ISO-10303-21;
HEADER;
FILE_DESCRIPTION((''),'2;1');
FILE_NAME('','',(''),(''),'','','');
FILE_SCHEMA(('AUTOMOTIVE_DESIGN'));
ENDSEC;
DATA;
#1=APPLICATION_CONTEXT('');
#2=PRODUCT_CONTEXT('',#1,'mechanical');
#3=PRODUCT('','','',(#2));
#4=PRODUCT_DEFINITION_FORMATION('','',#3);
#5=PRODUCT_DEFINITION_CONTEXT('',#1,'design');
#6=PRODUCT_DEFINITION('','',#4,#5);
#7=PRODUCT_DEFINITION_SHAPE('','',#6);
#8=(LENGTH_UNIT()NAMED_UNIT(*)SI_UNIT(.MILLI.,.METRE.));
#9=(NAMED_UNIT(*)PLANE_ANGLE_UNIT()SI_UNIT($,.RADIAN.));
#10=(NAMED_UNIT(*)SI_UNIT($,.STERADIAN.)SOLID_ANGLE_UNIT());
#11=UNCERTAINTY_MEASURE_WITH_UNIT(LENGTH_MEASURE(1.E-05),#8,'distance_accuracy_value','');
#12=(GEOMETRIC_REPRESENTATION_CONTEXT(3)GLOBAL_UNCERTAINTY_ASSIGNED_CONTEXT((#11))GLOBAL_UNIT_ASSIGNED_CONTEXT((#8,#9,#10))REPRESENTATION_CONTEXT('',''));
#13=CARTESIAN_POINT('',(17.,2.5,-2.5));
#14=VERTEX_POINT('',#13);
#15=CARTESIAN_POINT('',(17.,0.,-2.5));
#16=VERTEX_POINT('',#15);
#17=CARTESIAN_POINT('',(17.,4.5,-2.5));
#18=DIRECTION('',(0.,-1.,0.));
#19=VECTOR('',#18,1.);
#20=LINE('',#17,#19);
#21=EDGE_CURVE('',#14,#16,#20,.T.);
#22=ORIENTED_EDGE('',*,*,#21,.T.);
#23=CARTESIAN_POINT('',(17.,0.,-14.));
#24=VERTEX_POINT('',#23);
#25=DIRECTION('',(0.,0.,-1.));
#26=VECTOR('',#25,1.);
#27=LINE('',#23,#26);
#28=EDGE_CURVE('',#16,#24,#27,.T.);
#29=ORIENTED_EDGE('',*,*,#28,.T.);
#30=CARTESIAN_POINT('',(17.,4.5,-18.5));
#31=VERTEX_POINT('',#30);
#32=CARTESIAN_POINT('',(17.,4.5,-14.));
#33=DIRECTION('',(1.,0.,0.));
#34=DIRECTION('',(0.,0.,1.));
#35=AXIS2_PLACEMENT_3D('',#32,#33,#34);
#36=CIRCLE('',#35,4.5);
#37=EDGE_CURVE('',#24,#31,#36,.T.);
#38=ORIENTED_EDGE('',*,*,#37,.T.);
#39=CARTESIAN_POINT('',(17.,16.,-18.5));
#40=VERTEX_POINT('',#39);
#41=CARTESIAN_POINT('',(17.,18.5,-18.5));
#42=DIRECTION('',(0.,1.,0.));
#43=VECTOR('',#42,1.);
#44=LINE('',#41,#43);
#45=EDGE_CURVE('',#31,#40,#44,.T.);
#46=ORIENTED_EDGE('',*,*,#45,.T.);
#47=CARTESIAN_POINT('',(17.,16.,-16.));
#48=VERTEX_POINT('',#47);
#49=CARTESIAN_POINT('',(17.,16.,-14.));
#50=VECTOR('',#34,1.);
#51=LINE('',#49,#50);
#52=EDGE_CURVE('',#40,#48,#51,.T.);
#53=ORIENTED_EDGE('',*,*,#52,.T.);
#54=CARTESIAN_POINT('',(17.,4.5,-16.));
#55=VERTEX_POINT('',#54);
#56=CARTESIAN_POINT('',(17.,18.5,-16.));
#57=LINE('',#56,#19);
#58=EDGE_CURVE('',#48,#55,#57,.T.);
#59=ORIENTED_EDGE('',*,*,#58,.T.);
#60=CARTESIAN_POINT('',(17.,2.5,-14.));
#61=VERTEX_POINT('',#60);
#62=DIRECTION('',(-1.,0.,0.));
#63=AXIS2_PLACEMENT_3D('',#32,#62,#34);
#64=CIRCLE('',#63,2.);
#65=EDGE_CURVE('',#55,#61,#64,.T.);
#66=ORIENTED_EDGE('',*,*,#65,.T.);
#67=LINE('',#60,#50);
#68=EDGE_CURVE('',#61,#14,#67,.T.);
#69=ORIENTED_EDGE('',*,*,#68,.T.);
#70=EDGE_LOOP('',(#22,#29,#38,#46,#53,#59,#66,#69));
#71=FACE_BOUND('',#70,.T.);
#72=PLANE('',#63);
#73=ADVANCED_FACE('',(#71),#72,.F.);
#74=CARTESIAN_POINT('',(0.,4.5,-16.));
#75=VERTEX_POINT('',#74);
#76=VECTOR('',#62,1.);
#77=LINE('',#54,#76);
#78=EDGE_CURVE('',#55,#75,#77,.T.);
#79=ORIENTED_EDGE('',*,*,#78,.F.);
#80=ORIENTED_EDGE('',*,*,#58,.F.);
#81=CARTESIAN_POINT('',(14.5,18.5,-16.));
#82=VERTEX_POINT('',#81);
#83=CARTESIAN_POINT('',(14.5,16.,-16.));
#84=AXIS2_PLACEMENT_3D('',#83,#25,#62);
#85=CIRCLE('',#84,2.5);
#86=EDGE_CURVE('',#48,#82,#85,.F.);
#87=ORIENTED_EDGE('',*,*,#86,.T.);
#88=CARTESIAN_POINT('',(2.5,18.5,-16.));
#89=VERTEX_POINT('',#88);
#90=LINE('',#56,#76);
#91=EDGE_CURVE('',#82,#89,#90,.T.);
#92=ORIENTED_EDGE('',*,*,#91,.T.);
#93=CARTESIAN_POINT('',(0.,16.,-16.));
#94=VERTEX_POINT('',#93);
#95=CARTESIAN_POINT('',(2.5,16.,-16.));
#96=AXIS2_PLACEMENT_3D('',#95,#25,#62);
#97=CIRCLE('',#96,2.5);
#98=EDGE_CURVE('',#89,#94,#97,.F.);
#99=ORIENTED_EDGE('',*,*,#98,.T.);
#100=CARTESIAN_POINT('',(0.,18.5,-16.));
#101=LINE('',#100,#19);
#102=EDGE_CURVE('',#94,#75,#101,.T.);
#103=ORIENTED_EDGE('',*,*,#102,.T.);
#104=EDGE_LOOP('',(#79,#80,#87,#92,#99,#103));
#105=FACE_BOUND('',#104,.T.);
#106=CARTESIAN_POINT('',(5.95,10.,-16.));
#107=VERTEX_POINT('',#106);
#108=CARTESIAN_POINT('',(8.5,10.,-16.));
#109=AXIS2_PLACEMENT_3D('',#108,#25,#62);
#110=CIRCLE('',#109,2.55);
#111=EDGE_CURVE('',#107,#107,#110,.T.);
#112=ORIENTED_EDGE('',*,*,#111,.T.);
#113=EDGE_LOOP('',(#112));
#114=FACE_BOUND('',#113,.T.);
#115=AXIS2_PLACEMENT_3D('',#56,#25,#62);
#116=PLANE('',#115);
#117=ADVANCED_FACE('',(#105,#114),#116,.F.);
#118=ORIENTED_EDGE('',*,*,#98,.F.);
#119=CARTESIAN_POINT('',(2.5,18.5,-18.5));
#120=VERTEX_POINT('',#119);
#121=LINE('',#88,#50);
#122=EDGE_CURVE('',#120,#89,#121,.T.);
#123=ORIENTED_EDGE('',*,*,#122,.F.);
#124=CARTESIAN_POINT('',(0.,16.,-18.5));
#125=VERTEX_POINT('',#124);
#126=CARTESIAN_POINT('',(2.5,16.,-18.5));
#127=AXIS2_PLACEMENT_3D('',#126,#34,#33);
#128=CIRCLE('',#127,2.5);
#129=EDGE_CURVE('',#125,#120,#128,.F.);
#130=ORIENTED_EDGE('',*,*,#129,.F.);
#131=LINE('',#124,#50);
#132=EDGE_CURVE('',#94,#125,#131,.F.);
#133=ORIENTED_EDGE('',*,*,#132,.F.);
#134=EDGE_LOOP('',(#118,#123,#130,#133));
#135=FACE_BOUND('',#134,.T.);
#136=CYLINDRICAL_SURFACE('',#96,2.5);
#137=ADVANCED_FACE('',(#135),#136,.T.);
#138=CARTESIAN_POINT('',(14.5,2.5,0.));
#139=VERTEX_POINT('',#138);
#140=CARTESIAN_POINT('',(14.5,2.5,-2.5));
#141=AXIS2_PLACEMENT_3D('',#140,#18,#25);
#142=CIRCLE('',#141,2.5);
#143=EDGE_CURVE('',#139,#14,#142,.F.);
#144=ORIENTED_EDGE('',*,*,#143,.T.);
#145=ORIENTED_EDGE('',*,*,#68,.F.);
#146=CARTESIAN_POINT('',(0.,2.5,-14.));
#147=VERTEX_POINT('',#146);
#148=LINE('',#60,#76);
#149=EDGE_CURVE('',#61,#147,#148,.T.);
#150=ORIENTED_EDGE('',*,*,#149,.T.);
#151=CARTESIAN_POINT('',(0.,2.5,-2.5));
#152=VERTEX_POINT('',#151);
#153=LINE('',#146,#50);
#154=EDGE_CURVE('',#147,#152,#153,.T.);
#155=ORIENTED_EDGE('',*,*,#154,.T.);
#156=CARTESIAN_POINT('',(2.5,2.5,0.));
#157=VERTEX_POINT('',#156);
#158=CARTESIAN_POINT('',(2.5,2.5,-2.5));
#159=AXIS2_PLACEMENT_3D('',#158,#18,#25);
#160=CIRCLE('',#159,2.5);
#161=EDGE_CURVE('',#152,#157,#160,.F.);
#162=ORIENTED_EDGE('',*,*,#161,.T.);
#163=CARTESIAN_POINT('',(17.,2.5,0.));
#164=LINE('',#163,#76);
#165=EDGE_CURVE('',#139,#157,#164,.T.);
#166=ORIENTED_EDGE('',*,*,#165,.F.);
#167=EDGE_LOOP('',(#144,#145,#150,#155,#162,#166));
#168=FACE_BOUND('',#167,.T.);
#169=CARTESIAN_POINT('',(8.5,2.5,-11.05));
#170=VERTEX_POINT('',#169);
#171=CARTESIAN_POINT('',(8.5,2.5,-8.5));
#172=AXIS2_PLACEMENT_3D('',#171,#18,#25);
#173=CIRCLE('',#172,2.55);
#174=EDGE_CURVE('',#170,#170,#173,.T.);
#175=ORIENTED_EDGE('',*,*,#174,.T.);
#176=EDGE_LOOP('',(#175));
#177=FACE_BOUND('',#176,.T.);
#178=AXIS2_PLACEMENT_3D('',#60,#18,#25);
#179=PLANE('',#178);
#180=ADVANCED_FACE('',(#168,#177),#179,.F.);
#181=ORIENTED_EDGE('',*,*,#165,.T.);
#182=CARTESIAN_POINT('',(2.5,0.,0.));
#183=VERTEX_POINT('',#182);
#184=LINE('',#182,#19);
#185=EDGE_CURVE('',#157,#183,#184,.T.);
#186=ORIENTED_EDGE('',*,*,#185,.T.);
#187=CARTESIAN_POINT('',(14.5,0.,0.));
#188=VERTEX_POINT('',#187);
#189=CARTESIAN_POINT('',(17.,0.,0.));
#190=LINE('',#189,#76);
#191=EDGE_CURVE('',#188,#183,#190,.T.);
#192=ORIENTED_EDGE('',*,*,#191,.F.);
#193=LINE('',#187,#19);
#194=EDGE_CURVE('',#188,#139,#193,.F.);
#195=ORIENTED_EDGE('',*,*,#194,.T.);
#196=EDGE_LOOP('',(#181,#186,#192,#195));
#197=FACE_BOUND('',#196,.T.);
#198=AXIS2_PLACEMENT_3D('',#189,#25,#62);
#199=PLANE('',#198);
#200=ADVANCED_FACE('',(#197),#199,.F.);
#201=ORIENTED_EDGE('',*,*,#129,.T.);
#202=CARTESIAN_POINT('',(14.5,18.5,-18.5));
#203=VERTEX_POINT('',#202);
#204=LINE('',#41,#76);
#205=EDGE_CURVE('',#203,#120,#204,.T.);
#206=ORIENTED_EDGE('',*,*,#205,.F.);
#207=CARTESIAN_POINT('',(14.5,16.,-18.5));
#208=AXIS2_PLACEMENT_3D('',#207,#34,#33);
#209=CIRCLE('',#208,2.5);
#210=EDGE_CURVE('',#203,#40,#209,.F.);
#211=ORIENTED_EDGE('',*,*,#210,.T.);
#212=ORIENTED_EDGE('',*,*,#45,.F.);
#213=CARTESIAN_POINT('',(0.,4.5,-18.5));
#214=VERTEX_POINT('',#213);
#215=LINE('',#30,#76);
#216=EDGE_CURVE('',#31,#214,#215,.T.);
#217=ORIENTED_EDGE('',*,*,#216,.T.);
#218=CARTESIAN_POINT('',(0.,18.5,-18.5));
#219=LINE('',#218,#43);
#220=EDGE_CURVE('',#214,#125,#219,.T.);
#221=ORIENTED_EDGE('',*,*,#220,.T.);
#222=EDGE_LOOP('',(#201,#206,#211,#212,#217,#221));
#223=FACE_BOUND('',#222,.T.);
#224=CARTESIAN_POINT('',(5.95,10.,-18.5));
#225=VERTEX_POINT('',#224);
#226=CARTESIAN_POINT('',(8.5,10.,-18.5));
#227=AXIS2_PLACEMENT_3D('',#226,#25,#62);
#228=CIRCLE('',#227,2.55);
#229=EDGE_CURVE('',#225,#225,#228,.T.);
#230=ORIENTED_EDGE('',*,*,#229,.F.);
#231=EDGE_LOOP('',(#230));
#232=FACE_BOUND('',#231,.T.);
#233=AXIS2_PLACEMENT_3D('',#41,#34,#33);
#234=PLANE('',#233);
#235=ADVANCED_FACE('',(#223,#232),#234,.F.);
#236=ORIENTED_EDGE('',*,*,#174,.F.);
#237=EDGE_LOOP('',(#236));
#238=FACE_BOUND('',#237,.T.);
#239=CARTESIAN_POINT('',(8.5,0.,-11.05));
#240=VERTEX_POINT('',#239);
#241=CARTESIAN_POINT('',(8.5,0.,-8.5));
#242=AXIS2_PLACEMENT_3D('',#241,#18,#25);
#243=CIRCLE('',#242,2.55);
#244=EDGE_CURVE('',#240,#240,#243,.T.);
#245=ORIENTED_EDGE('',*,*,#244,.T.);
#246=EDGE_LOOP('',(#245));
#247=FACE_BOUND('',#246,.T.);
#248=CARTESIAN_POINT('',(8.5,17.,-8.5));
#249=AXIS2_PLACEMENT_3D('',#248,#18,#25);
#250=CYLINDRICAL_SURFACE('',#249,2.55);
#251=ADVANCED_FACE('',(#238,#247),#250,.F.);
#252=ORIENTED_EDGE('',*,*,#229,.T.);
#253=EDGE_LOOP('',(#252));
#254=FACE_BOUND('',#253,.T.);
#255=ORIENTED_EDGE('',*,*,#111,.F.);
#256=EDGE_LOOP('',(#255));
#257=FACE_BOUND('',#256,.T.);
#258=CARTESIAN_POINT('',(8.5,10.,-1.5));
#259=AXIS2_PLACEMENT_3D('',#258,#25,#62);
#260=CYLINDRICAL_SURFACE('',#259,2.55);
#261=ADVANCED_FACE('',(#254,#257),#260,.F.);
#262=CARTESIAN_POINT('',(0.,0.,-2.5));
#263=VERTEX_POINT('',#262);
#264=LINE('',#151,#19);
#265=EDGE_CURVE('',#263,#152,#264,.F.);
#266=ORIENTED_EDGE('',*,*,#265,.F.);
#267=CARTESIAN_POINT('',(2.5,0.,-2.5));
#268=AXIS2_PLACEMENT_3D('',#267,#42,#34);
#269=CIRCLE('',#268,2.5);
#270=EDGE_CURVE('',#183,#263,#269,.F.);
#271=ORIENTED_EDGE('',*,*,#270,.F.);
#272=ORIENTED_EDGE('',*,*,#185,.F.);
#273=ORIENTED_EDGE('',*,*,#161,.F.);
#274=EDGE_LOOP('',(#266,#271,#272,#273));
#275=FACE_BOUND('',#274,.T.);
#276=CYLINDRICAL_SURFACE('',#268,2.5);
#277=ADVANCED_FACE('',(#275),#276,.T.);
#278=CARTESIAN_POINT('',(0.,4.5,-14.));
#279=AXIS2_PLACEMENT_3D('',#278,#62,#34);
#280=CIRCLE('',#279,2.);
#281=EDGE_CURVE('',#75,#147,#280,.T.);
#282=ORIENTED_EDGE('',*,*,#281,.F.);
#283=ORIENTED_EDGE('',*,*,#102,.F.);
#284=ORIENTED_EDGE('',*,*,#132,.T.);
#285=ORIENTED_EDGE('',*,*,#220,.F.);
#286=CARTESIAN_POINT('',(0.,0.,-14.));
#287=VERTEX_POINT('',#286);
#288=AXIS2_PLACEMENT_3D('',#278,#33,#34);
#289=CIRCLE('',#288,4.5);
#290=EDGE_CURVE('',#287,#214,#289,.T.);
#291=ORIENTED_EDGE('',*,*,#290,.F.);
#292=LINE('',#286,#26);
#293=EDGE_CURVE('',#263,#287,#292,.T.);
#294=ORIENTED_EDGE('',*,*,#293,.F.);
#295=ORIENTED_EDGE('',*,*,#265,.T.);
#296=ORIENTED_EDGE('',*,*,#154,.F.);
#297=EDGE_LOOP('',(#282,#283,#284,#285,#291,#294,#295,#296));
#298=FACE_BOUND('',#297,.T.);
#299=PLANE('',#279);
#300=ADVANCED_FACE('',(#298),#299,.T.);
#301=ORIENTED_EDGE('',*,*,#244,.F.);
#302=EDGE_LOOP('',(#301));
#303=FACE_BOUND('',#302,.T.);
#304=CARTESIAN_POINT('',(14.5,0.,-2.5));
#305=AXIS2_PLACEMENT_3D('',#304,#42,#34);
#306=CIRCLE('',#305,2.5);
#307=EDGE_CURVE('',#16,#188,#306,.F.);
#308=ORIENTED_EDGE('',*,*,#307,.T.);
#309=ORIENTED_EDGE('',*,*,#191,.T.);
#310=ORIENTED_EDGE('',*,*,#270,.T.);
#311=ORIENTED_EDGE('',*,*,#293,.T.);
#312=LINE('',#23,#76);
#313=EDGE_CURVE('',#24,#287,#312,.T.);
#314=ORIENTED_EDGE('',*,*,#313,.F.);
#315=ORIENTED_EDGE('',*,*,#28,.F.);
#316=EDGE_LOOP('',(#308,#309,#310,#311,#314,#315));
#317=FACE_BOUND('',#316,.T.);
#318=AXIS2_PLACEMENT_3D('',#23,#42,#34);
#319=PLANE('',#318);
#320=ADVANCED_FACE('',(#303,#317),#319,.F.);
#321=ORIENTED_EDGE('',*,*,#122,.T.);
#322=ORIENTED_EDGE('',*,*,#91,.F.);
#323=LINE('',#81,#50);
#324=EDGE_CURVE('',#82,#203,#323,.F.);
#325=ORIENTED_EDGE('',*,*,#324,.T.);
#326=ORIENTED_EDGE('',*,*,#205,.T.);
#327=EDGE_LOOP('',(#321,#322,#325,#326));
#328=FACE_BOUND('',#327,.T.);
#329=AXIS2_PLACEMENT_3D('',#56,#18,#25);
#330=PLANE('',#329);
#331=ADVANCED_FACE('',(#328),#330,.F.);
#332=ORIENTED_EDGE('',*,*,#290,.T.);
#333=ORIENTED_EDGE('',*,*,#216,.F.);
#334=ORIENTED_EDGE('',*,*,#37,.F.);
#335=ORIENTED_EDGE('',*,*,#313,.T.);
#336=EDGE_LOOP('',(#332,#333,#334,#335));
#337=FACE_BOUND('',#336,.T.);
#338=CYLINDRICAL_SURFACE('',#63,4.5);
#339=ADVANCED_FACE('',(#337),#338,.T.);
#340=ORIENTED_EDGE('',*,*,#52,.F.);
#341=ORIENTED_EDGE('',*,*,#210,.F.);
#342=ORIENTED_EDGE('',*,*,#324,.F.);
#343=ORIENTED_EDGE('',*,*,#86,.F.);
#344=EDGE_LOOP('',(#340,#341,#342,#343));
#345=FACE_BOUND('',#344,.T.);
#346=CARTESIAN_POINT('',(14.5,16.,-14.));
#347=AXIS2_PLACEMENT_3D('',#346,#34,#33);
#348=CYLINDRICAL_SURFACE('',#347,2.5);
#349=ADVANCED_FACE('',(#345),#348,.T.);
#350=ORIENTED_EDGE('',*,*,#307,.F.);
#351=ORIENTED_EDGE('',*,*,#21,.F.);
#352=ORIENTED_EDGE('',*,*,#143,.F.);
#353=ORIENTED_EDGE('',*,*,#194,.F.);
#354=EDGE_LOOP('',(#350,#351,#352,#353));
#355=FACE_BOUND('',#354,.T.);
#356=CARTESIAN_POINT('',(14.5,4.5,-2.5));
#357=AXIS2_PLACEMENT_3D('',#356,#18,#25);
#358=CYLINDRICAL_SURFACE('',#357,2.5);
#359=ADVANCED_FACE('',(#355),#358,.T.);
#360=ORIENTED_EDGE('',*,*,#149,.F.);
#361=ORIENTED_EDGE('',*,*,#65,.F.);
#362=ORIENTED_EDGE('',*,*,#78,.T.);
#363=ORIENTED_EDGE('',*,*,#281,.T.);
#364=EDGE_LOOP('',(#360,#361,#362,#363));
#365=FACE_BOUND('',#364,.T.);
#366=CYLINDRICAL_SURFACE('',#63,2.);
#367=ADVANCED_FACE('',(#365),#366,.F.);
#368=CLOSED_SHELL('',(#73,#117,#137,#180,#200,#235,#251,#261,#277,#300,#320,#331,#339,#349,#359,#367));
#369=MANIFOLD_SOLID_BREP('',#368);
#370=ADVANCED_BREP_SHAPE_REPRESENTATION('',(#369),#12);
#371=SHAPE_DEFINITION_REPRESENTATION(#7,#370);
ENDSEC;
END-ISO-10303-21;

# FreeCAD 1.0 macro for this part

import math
import FreeCAD as App
import Part
import Sketcher

V = App.Vector
Q = App.Units.Quantity


def edges_at(feature, points):
    """Names of the edges that pass closest to the given points."""
    edges = feature.Shape.Edges
    near = lambda p: min(range(len(edges)), key=lambda i: edges[i].distToShape(Part.Vertex(*p))[0])
    return sorted({f"Edge{near(p) + 1}" for p in points})

doc = App.newDocument("Part")
params = doc.addObject("Spreadsheet::Sheet", "Params")
for row, (alias, value) in enumerate([
    ("sketch1_radius", "2 mm"),
    ("sketch1_radius2", "4.5 mm"),
    ("sketch1_width", "14 mm"),
    ("pad1_length", "17 mm"),
    ("fillet_radius", "2.5 mm"),
    ("sketch2_diameter", "5.1 mm"),
    ("pocket1_length", "17 mm"),
    ("sketch3_diameter", "5.1 mm"),
    ("pocket2_length", "17 mm"),
], start=1):
    params.set(f"A{row}", alias)
    params.set(f"B{row}", "=" + value)
    params.setAlias(f"B{row}", alias)

body = doc.addObject("PartDesign::Body", "Body")

# Sketch on YZ plane
sketch1 = body.newObject("Sketcher::SketchObject", "Sketch")
sketch1.AttachmentSupport = (doc.getObject("YZ_Plane"), [""])
sketch1.MapMode = "FlatFace"
sketch1.addGeometry([
    Part.LineSegment(V(2.5, -14, 0), V(2.5, 0, 0)),  # 0
    Part.LineSegment(V(2.5, 0, 0), V(0, 0, 0)),  # 1
    Part.LineSegment(V(0, 0, 0), V(0, -14, 0)),  # 2
    Part.ArcOfCircle(Part.Circle(V(4.5, -14, 0), V(0, 0, 1), 4.5), math.radians(-180), math.radians(-90)),  # 3
    Part.LineSegment(V(4.5, -18.5, 0), V(18.5, -18.5, 0)),  # 4
    Part.LineSegment(V(18.5, -18.5, 0), V(18.5, -16, 0)),  # 5
    Part.LineSegment(V(18.5, -16, 0), V(4.5, -16, 0)),  # 6
    Part.ArcOfCircle(Part.Circle(V(4.5, -14, 0), V(0, 0, 1), 2), math.radians(-180), math.radians(-90)),  # 7
], False)
sketch1.addConstraint([
    Sketcher.Constraint("Coincident", 0, 2, 1, 1),
    Sketcher.Constraint("Coincident", 1, 2, 2, 1),
    Sketcher.Constraint("Tangent", 2, 2, 3, 1),
    Sketcher.Constraint("Tangent", 3, 2, 4, 1),
    Sketcher.Constraint("Coincident", 4, 2, 5, 1),
    Sketcher.Constraint("Coincident", 5, 2, 6, 1),
    Sketcher.Constraint("Tangent", 6, 2, 7, 2),
    Sketcher.Constraint("Tangent", 7, 1, 0, 1),
    Sketcher.Constraint("Vertical", 0),
    Sketcher.Constraint("Horizontal", 1),
    Sketcher.Constraint("Vertical", 2),
    Sketcher.Constraint("Horizontal", 4),
    Sketcher.Constraint("Vertical", 5),
    Sketcher.Constraint("Horizontal", 6),
    Sketcher.Constraint("Coincident", 1, 2, -1, 1),
    Sketcher.Constraint("Coincident", 7, 3, 3, 3),
    Sketcher.Constraint("Equal", 6, 0),
    Sketcher.Constraint("Radius", 7, Q("2 mm")),
    Sketcher.Constraint("Radius", 3, Q("4.5 mm")),
    Sketcher.Constraint("DistanceX", 4, 1, 4, 2, Q("14 mm")),
])
sketch1.setExpression("Constraints[17]", "Params.sketch1_radius")
sketch1.setExpression("Constraints[18]", "Params.sketch1_radius2")
sketch1.setExpression("Constraints[19]", "Params.sketch1_width")
pad1 = body.newObject("PartDesign::Pad", "Pad")
pad1.Profile = sketch1
pad1.setExpression("Length", "Params.pad1_length")
doc.recompute()

fillet = body.newObject("PartDesign::Fillet", "Fillet")
fillet.Base = (pad1, edges_at(pad1, [
    (0, 1.25, 0),
    (17, 18.5, -17.25),
    (17, 1.25, 0),
    (0, 18.5, -17.25),
]))
fillet.setExpression("Radius", "Params.fillet_radius")

# Sketch on XZ plane
sketch2 = body.newObject("Sketcher::SketchObject", "Sketch001")
sketch2.AttachmentSupport = (doc.getObject("XZ_Plane"), [""])
sketch2.MapMode = "FlatFace"
sketch2.addGeometry(Part.Circle(V(8.5, -8.5, 0), V(0, 0, 1), 2.5), False)
sketch2.addConstraint([
    Sketcher.Constraint("Diameter", 0, Q("5.1 mm")),
    Sketcher.Constraint("DistanceX", -1, 1, 0, 3, Q("8.5 mm")),
    Sketcher.Constraint("DistanceY", 0, 3, -1, 1, Q("8.5 mm")),
])
sketch2.setExpression("Constraints[0]", "Params.sketch2_diameter")
pocket1 = body.newObject("PartDesign::Pocket", "Pocket")
pocket1.Profile = sketch2
pocket1.setExpression("Length", "Params.pocket1_length")

# Sketch on XY plane
sketch3 = body.newObject("Sketcher::SketchObject", "Sketch002")
sketch3.AttachmentSupport = (doc.getObject("XY_Plane"), [""])
sketch3.MapMode = "FlatFace"
sketch3.AttachmentOffset = App.Placement(V(0, 0, -18.5), App.Rotation())
sketch3.addGeometry(Part.Circle(V(8.5, 10, 0), V(0, 0, 1), 2.5), False)
sketch3.addConstraint([
    Sketcher.Constraint("Diameter", 0, Q("5.1 mm")),
    Sketcher.Constraint("DistanceY", -1, 1, 0, 3, Q("10 mm")),
    Sketcher.Constraint("DistanceX", -1, 1, 0, 3, Q("8.5 mm")),
])
sketch3.setExpression("Constraints[0]", "Params.sketch3_diameter")
pocket2 = body.newObject("PartDesign::Pocket", "Pocket001")
pocket2.Profile = sketch3
pocket2.setExpression("Length", "Params.pocket2_length")
pocket2.Reversed = True

doc.recompute()
